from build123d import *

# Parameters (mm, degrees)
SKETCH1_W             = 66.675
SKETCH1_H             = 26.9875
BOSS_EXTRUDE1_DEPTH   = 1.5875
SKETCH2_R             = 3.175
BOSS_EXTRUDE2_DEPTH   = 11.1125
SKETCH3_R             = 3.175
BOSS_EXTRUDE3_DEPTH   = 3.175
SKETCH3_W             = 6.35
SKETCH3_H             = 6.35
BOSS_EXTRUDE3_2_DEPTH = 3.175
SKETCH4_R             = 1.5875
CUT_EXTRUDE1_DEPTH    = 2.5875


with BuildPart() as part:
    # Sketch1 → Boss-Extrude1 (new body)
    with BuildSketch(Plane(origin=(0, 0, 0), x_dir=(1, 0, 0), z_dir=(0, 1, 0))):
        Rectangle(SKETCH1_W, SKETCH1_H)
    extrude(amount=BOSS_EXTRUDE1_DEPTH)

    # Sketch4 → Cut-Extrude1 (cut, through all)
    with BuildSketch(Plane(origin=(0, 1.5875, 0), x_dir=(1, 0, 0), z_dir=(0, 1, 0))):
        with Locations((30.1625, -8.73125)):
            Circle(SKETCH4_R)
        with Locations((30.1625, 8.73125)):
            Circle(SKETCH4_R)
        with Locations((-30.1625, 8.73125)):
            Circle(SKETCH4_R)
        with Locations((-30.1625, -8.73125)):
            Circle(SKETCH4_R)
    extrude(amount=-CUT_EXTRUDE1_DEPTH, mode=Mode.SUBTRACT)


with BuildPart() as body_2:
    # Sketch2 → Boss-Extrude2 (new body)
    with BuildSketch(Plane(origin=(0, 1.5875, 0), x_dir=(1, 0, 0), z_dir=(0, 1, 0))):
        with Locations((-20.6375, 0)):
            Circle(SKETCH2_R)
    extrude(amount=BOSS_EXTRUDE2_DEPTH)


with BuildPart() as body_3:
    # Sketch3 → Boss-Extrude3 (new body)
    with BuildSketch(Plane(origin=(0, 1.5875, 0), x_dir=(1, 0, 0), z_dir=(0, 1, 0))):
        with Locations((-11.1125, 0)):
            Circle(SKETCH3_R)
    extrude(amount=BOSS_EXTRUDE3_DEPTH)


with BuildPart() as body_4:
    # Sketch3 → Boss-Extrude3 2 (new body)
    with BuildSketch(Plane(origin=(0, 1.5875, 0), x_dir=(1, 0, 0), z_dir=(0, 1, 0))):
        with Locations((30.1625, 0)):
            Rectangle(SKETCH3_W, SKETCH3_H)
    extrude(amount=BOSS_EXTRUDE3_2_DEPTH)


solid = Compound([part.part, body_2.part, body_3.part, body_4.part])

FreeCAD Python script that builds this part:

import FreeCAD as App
import Part
import Sketcher
from FreeCAD import Vector
Q = App.Units.Quantity

doc = App.newDocument("Part")
params = doc.addObject("Spreadsheet::Sheet", "Params")
for row, (alias, value) in enumerate([
    ("sketch1_width", "2.625 in"),
    ("sketch1_height", "1.0625 in"),
    ("pad1_length", "0.0625 in"),
    ("sketch2_diameter", "0.125 in"),
    ("sketch3_diameter", "0.25 in"),
    ("pad2_length", "0.4375 in"),
    ("sketch4_diameter", "0.25 in"),
    ("pad3_length", "0.125 in"),
    ("sketch5_width", "0.25 in"),
    ("pad4_length", "0.125 in"),
], start=1):
    params.set(f"A{row}", alias)
    params.set(f"B{row}", "=" + value)
    params.setAlias(f"B{row}", alias)

body = doc.addObject("PartDesign::Body", "Body")

# Sketch on XZ plane
sketch1 = doc.addObject("Sketcher::SketchObject", "Sketch")
body.addObject(sketch1)
sketch1.AttachmentSupport = (doc.XZ_Plane, [""])
sketch1.MapMode = "FlatFace"
sketch1.addGeometry([
    Part.LineSegment(Vector(-33, -13, 0), Vector(-33, 13, 0)),
    Part.LineSegment(Vector(-33, 13, 0), Vector(33, 13, 0)),
    Part.LineSegment(Vector(33, 13, 0), Vector(33, -13, 0)),
    Part.LineSegment(Vector(33, -13, 0), Vector(-33, -13, 0)),
], False)
sketch1.addConstraint([
    Sketcher.Constraint("Coincident", 0, 2, 1, 1),
    Sketcher.Constraint("Coincident", 1, 2, 2, 1),
    Sketcher.Constraint("Coincident", 2, 2, 3, 1),
    Sketcher.Constraint("Coincident", 3, 2, 0, 1),
    Sketcher.Constraint("Vertical", 0),
    Sketcher.Constraint("Horizontal", 1),
    Sketcher.Constraint("Vertical", 2),
    Sketcher.Constraint("Horizontal", 3),
    Sketcher.Constraint("Symmetric", 0, 2, 2, 2, -1, 1),
    Sketcher.Constraint("DistanceX", 1, 1, 1, 2, Q("2.625 in")),
    Sketcher.Constraint("DistanceY", 0, 1, 0, 2, Q("1.0625 in")),
])
sketch1.setExpression("Constraints[9]", "Params.sketch1_width")
sketch1.setExpression("Constraints[10]", "Params.sketch1_height")
pad1 = doc.addObject("PartDesign::Pad", "Pad")
body.addObject(pad1)
pad1.Profile = sketch1
pad1.setExpression("Length", "Params.pad1_length")
pad1.Reversed = True

# Sketch on XZ plane
sketch2 = doc.addObject("Sketcher::SketchObject", "Sketch001")
body.addObject(sketch2)
sketch2.AttachmentSupport = (doc.XZ_Plane, [""])
sketch2.MapMode = "FlatFace"
sketch2.AttachmentOffset = App.Placement(Vector(0, 0, -0.0625 * 25.4), App.Rotation())
sketch2.addGeometry([
    Part.Circle(Vector(30.2, 8.7, 0), Vector(0, 0, 1), 1.6),
    Part.Circle(Vector(30.2, -8.7, 0), Vector(0, 0, 1), 1.6),
    Part.Circle(Vector(-30.2, -8.7, 0), Vector(0, 0, 1), 1.6),
    Part.Circle(Vector(-30.2, 8.7, 0), Vector(0, 0, 1), 1.6),
], False)
sketch2.addConstraint([
    Sketcher.Constraint("Equal", 0, 1),
    Sketcher.Constraint("Equal", 1, 2),
    Sketcher.Constraint("Equal", 2, 3),
    Sketcher.Constraint("Symmetric", 0, 3, 2, 3, -1, 1),
    Sketcher.Constraint("Symmetric", 1, 3, 3, 3, -1, 1),
    Sketcher.Constraint("Symmetric", 1, 3, 2, 3, -2),
    Sketcher.Constraint("Diameter", 0, Q("0.125 in")),
    Sketcher.Constraint("DistanceX", -1, 1, 0, 3, Q("1.1875 in")),
    Sketcher.Constraint("DistanceY", -1, 1, 0, 3, Q("0.34375 in")),
])
sketch2.setExpression("Constraints[6]", "Params.sketch2_diameter")
pocket1 = doc.addObject("PartDesign::Pocket", "Pocket")
body.addObject(pocket1)
pocket1.Profile = sketch2
pocket1.Type = "ThroughAll"
pocket1.Reversed = True
body2 = doc.addObject("PartDesign::Body", "Body001")

# Sketch on XZ plane
sketch3 = doc.addObject("Sketcher::SketchObject", "Sketch002")
body2.addObject(sketch3)
sketch3.AttachmentSupport = (doc.getObject("XZ_Plane001"), [""])
sketch3.MapMode = "FlatFace"
sketch3.AttachmentOffset = App.Placement(Vector(0, 0, -0.0625 * 25.4), App.Rotation())
sketch3.addGeometry(Part.Circle(Vector(-20.6, 0, 0), Vector(0, 0, 1), 3.2), False)
sketch3.addConstraint([
    Sketcher.Constraint("PointOnObject", 0, 3, -1),
    Sketcher.Constraint("Diameter", 0, Q("0.25 in")),
    Sketcher.Constraint("DistanceX", 0, 3, -1, 1, Q("0.8125 in")),
])
sketch3.setExpression("Constraints[1]", "Params.sketch3_diameter")
pad2 = doc.addObject("PartDesign::Pad", "Pad001")
body2.addObject(pad2)
pad2.Profile = sketch3
pad2.setExpression("Length", "Params.pad2_length")
pad2.Reversed = True
body3 = doc.addObject("PartDesign::Body", "Body002")

# Sketch on XZ plane
sketch4 = doc.addObject("Sketcher::SketchObject", "Sketch003")
body3.addObject(sketch4)
sketch4.AttachmentSupport = (doc.getObject("XZ_Plane002"), [""])
sketch4.MapMode = "FlatFace"
sketch4.AttachmentOffset = App.Placement(Vector(0, 0, -0.0625 * 25.4), App.Rotation())
sketch4.addGeometry(Part.Circle(Vector(-11.1, 0, 0), Vector(0, 0, 1), 3.2), False)
sketch4.addConstraint([
    Sketcher.Constraint("PointOnObject", 0, 3, -1),
    Sketcher.Constraint("Diameter", 0, Q("0.25 in")),
    Sketcher.Constraint("DistanceX", 0, 3, -1, 1, Q("0.4375 in")),
])
sketch4.setExpression("Constraints[1]", "Params.sketch4_diameter")
pad3 = doc.addObject("PartDesign::Pad", "Pad002")
body3.addObject(pad3)
pad3.Profile = sketch4
pad3.setExpression("Length", "Params.pad3_length")
pad3.Reversed = True
body4 = doc.addObject("PartDesign::Body", "Body003")

# Sketch on XZ plane
sketch5 = doc.addObject("Sketcher::SketchObject", "Sketch004")
body4.addObject(sketch5)
sketch5.AttachmentSupport = (doc.getObject("XZ_Plane003"), [""])
sketch5.MapMode = "FlatFace"
sketch5.AttachmentOffset = App.Placement(Vector(0, 0, -0.0625 * 25.4), App.Rotation())
sketch5.addGeometry([
    Part.LineSegment(Vector(27, -3, 0), Vector(27, 3, 0)),
    Part.LineSegment(Vector(27, 3, 0), Vector(33, 3, 0)),
    Part.LineSegment(Vector(33, 3, 0), Vector(33, -3, 0)),
    Part.LineSegment(Vector(33, -3, 0), Vector(27, -3, 0)),
], False)
sketch5.addConstraint([
    Sketcher.Constraint("Coincident", 0, 2, 1, 1),
    Sketcher.Constraint("Coincident", 1, 2, 2, 1),
    Sketcher.Constraint("Coincident", 2, 2, 3, 1),
    Sketcher.Constraint("Coincident", 3, 2, 0, 1),
    Sketcher.Constraint("Vertical", 0),
    Sketcher.Constraint("Horizontal", 1),
    Sketcher.Constraint("Vertical", 2),
    Sketcher.Constraint("Horizontal", 3),
    Sketcher.Constraint("Equal", 3, 0),
    Sketcher.Constraint("DistanceX", 1, 1, 1, 2, Q("0.25 in")),
    Sketcher.Constraint("DistanceX", -1, 1, 0, 2, Q("1.0625 in")),
    Sketcher.Constraint("DistanceY", -1, 1, 0, 2, Q("0.125 in")),
])
sketch5.setExpression("Constraints[9]", "Params.sketch5_width")
pad4 = doc.addObject("PartDesign::Pad", "Pad003")
body4.addObject(pad4)
pad4.Profile = sketch5
pad4.setExpression("Length", "Params.pad4_length")
pad4.Reversed = True

doc.recompute()
